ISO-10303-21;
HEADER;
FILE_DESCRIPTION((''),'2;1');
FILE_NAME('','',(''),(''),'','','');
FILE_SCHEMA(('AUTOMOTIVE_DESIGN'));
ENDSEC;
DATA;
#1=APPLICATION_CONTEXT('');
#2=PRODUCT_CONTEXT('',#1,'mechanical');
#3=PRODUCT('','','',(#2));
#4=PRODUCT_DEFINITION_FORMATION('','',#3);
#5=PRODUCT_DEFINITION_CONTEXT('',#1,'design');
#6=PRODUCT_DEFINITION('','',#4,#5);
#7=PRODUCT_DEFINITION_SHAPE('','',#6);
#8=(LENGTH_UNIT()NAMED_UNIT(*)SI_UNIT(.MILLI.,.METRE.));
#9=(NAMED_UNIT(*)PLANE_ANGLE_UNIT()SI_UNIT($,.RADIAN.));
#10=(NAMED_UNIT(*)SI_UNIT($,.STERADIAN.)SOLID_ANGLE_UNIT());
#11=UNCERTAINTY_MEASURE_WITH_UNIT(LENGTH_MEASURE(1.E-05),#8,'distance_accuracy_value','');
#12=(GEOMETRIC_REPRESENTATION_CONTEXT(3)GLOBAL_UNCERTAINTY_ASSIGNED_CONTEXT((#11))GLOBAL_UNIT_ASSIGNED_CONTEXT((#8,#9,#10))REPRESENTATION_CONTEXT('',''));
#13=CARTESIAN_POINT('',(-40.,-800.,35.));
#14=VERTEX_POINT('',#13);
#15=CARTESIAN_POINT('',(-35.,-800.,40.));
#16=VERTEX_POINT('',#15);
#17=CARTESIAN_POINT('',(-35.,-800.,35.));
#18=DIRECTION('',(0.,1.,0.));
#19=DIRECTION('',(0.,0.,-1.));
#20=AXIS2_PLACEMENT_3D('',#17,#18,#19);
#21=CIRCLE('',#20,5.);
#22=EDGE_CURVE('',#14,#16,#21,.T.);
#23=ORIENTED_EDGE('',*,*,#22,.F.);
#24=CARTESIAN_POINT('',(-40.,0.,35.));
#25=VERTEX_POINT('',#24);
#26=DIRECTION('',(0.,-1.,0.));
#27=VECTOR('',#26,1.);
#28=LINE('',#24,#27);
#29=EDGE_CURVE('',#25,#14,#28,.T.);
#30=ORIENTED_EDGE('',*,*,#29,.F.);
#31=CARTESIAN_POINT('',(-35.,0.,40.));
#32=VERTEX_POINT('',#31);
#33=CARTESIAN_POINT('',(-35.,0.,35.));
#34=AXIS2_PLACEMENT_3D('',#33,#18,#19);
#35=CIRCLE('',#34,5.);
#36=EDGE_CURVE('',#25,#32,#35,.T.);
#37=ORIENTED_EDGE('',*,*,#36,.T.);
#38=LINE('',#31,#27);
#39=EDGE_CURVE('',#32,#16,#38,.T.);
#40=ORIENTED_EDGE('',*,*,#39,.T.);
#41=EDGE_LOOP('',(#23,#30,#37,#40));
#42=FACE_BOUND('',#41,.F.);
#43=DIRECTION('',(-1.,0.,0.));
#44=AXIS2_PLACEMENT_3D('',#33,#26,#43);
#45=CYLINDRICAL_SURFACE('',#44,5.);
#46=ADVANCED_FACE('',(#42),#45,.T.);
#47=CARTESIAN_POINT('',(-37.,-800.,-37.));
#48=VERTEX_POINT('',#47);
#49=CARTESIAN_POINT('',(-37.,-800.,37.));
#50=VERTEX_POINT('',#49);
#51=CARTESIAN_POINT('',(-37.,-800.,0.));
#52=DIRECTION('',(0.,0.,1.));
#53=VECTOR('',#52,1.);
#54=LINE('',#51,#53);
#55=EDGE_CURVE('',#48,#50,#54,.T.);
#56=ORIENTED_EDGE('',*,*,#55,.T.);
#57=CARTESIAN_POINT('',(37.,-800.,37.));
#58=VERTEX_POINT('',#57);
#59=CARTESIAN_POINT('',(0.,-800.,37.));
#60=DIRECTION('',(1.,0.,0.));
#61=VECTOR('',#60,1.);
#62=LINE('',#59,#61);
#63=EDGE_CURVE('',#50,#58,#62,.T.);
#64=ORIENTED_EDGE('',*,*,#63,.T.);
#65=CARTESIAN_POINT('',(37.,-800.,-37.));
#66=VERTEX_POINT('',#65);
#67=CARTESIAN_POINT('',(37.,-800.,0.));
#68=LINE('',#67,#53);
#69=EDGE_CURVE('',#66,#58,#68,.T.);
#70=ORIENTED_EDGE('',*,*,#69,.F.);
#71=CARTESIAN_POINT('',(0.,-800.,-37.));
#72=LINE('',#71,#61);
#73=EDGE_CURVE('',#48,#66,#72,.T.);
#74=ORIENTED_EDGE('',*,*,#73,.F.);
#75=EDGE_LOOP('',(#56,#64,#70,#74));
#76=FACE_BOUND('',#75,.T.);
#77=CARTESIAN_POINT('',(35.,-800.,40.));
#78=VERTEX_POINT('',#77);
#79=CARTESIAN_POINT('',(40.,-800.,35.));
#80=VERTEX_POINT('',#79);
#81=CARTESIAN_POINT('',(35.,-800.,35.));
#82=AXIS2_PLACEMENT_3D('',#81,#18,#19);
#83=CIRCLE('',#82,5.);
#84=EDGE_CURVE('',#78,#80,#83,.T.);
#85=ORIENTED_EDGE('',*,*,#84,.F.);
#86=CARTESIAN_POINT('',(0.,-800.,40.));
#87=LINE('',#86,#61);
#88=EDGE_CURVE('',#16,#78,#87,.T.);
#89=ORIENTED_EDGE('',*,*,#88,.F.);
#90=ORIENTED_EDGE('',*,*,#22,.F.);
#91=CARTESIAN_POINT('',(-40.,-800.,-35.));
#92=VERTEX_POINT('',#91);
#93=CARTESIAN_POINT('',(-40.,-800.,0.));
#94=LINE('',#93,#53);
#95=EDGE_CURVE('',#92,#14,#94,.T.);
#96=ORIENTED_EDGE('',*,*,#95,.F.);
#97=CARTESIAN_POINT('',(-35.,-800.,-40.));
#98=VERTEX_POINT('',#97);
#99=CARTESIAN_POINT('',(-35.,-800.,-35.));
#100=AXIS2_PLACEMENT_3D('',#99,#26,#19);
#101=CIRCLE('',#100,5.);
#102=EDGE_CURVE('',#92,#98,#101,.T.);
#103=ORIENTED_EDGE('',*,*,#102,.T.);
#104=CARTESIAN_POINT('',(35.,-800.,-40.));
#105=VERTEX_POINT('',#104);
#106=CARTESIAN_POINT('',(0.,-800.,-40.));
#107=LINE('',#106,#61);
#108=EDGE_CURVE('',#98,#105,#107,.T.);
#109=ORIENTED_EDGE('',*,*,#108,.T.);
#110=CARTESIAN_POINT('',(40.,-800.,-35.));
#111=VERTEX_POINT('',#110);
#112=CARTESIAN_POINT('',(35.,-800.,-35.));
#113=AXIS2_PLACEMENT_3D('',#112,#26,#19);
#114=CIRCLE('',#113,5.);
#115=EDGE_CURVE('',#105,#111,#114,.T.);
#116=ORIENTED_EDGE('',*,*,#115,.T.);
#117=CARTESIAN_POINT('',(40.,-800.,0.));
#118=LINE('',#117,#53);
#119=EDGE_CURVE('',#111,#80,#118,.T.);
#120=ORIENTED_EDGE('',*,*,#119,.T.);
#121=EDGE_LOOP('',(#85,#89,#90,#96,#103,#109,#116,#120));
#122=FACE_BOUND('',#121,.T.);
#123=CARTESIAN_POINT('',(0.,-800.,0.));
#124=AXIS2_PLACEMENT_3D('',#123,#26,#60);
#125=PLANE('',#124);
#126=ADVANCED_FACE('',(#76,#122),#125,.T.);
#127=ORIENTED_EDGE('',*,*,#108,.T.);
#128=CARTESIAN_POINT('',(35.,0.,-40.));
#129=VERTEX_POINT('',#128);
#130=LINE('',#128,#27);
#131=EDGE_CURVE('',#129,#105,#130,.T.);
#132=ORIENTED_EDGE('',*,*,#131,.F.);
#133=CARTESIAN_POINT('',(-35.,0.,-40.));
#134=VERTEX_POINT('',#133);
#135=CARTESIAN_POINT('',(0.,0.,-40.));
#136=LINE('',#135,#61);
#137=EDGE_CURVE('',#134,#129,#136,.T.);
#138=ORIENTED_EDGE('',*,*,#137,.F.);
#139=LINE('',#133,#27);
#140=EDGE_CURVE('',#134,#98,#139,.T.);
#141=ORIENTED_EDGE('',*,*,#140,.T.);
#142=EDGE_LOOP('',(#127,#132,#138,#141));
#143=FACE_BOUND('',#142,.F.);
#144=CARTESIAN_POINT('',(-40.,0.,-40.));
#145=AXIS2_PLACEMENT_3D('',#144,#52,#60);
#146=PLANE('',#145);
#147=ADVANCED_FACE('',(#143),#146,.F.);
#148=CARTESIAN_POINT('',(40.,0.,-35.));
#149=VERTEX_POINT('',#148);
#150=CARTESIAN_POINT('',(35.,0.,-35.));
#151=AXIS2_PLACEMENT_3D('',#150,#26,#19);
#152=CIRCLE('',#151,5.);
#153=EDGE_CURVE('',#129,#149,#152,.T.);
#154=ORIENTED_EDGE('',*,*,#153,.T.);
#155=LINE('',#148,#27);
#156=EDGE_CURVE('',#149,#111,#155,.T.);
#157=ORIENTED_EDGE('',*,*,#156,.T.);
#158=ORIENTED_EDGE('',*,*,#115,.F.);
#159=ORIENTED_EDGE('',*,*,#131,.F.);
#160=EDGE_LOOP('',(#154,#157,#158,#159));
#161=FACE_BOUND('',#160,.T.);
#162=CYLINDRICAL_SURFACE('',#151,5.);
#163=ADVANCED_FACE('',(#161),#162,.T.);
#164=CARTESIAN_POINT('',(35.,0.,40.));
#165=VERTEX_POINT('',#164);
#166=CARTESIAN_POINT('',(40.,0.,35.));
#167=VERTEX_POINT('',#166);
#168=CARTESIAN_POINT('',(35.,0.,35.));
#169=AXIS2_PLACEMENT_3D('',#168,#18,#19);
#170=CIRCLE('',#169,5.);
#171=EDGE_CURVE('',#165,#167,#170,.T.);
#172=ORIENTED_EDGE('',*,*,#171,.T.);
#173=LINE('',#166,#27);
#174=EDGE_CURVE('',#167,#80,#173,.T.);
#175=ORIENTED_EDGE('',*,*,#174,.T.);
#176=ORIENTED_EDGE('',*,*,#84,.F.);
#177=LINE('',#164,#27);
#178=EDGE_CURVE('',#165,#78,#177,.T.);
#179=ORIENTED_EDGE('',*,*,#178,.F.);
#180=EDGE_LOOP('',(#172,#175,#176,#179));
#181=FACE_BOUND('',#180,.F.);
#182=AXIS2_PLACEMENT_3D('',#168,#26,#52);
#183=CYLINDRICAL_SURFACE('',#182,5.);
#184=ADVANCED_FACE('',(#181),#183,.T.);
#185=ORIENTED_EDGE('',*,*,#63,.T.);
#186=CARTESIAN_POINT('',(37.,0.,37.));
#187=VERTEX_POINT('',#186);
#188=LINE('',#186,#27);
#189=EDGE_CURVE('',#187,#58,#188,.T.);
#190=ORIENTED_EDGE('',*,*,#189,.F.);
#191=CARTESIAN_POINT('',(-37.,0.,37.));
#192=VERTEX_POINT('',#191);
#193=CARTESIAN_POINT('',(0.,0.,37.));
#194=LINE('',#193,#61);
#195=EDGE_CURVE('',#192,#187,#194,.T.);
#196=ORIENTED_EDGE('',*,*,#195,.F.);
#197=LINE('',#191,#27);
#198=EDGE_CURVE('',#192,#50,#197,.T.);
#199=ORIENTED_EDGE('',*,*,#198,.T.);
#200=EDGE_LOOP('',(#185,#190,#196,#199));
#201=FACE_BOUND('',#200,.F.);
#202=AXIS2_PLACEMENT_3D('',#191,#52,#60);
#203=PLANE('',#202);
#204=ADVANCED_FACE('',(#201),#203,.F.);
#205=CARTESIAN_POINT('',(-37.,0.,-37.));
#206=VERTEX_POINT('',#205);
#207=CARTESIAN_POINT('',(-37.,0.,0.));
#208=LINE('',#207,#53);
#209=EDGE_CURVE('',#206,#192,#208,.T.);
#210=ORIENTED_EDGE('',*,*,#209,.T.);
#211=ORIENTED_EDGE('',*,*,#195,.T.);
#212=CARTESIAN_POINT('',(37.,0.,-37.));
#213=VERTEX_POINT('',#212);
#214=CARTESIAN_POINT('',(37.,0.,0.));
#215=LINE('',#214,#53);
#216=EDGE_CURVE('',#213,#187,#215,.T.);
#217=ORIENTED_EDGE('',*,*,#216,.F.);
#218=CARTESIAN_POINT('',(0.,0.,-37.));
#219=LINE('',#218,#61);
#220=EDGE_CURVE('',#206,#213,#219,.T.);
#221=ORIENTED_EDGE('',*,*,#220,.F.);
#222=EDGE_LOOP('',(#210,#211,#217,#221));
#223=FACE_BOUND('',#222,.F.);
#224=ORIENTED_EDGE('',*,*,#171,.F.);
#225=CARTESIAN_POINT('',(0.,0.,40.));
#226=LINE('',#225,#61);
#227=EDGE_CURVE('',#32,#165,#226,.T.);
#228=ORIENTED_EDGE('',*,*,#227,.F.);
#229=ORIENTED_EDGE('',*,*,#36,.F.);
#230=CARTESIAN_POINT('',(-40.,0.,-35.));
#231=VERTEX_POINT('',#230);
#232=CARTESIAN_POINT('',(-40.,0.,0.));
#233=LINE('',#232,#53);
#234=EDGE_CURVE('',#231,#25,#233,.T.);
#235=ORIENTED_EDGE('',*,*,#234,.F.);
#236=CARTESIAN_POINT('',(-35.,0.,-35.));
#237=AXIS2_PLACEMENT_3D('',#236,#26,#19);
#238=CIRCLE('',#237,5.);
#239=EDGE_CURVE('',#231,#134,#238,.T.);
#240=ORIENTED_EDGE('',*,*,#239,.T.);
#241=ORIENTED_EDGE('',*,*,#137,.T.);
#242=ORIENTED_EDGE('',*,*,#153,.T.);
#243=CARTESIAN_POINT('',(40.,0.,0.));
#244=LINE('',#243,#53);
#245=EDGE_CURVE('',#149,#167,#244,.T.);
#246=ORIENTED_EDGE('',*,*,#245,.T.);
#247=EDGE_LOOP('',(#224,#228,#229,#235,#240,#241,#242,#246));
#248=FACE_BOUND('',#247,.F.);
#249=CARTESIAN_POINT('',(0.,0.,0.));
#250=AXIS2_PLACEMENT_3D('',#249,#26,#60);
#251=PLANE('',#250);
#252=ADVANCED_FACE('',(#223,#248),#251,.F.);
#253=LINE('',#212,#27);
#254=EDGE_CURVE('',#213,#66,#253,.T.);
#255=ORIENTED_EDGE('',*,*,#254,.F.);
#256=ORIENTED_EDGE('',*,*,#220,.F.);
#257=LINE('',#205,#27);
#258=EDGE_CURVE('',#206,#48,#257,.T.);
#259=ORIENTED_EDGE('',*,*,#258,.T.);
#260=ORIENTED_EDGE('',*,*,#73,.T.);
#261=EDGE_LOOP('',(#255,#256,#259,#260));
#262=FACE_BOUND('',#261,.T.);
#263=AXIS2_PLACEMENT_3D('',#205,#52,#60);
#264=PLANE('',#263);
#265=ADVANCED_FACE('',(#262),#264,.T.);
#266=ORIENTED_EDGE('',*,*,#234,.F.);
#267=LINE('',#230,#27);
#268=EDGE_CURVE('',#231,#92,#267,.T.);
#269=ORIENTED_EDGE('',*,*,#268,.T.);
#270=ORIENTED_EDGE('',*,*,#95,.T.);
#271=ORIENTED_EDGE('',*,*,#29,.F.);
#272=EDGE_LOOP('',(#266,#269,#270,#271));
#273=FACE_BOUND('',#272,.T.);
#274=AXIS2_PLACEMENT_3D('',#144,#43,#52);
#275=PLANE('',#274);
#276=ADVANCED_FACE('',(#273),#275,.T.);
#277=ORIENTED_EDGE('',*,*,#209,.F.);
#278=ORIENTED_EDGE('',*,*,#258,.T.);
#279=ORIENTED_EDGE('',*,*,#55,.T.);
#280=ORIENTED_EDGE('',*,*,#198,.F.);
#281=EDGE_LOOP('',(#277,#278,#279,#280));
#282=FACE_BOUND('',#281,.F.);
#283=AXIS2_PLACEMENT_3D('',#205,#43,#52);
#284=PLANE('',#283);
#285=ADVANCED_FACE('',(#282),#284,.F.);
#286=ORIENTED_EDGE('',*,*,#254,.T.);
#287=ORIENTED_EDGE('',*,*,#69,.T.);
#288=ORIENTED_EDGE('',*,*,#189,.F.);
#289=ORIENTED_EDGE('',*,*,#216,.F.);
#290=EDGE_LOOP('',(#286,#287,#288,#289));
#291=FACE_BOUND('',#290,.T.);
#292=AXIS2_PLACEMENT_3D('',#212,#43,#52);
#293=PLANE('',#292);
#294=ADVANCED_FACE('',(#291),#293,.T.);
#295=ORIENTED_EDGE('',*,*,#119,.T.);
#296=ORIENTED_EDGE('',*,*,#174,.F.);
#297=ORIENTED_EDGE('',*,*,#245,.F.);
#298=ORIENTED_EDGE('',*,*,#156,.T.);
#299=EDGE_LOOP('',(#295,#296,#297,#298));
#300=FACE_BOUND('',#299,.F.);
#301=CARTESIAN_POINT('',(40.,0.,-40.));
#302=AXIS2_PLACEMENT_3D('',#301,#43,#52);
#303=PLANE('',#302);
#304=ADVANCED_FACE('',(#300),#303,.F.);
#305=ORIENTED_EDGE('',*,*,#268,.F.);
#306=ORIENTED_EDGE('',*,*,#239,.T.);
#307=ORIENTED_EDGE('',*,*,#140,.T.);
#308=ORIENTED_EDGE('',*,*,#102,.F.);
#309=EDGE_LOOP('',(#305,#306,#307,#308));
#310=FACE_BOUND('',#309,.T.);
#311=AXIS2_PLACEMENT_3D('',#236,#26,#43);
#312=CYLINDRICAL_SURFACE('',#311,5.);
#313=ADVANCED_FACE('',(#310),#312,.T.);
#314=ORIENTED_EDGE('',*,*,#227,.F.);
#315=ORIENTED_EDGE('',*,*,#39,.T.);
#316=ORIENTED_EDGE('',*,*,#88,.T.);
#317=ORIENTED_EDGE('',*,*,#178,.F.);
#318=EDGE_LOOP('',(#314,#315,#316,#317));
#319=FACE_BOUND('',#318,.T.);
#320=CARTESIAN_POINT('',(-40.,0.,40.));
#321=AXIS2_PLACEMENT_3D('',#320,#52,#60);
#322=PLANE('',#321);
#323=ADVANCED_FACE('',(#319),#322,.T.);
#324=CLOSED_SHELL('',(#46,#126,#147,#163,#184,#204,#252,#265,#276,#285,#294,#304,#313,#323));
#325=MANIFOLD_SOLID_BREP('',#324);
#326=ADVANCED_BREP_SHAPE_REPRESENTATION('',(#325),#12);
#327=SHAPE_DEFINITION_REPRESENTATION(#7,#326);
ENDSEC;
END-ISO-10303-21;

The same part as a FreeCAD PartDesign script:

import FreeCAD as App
import Part
import Sketcher

V = App.Vector


def edges_at(feature, points):
    """Names of the edges that pass closest to the given points."""
    edges = feature.Shape.Edges
    near = lambda p: min(range(len(edges)), key=lambda i: edges[i].distToShape(Part.Vertex(*p))[0])
    return sorted({f"Edge{near(p) + 1}" for p in points})

doc = App.newDocument("Part")
body = doc.addObject("PartDesign::Body", "Body")

# Sketch on XZ plane
sketch1 = body.newObject("Sketcher::SketchObject", "Sketch")
sketch1.AttachmentSupport = (doc.getObject("XZ_Plane"), [""])
sketch1.MapMode = "FlatFace"
sketch1.addGeometry([
    Part.LineSegment(V(-40, 40, 0), V(-40, -40, 0)),  # 0
    Part.LineSegment(V(-40, -40, 0), V(40, -40, 0)),  # 1
    Part.LineSegment(V(40, -40, 0), V(40, 40, 0)),  # 2
    Part.LineSegment(V(40, 40, 0), V(-40, 40, 0)),  # 3
    Part.LineSegment(V(37, -37, 0), V(-37, -37, 0)),  # 4
    Part.LineSegment(V(-37, -37, 0), V(-37, 37, 0)),  # 5
    Part.LineSegment(V(-37, 37, 0), V(37, 37, 0)),  # 6
    Part.LineSegment(V(37, 37, 0), V(37, -37, 0)),  # 7
], False)
sketch1.addConstraint([
    Sketcher.Constraint("Coincident", 0, 2, 1, 1),
    Sketcher.Constraint("Coincident", 1, 2, 2, 1),
    Sketcher.Constraint("Coincident", 2, 2, 3, 1),
    Sketcher.Constraint("Coincident", 3, 2, 0, 1),
    Sketcher.Constraint("Coincident", 4, 2, 5, 1),
    Sketcher.Constraint("Coincident", 5, 2, 6, 1),
    Sketcher.Constraint("Coincident", 6, 2, 7, 1),
    Sketcher.Constraint("Coincident", 7, 2, 4, 1),
    Sketcher.Constraint("Vertical", 0),
    Sketcher.Constraint("Horizontal", 1),
    Sketcher.Constraint("Vertical", 2),
    Sketcher.Constraint("Horizontal", 3),
    Sketcher.Constraint("Horizontal", 4),
    Sketcher.Constraint("Vertical", 5),
    Sketcher.Constraint("Horizontal", 6),
    Sketcher.Constraint("Vertical", 7),
    Sketcher.Constraint("Symmetric", 0, 2, 2, 2, -1, 1),
    Sketcher.Constraint("Symmetric", 4, 2, 6, 2, -1, 1),
    Sketcher.Constraint("Equal", 3, 0),
    Sketcher.Constraint("Equal", 6, 5),
    Sketcher.Constraint("DistanceX", 1, 1, 1, 2, 80.0),
    Sketcher.Constraint("DistanceX", 4, 2, 4, 1, 74.0),
])
pad1 = body.newObject("PartDesign::Pad", "Pad")
pad1.Profile = sketch1
pad1.Length = 800
doc.recompute()

fillet = body.newObject("PartDesign::Fillet", "Fillet")
fillet.Base = (pad1, edges_at(pad1, [
    (40, -400, 40),
    (-40, -400, 40),
    (40, -400, -40),
    (-40, -400, -40),
]))
fillet.Radius = 5

doc.recompute()
